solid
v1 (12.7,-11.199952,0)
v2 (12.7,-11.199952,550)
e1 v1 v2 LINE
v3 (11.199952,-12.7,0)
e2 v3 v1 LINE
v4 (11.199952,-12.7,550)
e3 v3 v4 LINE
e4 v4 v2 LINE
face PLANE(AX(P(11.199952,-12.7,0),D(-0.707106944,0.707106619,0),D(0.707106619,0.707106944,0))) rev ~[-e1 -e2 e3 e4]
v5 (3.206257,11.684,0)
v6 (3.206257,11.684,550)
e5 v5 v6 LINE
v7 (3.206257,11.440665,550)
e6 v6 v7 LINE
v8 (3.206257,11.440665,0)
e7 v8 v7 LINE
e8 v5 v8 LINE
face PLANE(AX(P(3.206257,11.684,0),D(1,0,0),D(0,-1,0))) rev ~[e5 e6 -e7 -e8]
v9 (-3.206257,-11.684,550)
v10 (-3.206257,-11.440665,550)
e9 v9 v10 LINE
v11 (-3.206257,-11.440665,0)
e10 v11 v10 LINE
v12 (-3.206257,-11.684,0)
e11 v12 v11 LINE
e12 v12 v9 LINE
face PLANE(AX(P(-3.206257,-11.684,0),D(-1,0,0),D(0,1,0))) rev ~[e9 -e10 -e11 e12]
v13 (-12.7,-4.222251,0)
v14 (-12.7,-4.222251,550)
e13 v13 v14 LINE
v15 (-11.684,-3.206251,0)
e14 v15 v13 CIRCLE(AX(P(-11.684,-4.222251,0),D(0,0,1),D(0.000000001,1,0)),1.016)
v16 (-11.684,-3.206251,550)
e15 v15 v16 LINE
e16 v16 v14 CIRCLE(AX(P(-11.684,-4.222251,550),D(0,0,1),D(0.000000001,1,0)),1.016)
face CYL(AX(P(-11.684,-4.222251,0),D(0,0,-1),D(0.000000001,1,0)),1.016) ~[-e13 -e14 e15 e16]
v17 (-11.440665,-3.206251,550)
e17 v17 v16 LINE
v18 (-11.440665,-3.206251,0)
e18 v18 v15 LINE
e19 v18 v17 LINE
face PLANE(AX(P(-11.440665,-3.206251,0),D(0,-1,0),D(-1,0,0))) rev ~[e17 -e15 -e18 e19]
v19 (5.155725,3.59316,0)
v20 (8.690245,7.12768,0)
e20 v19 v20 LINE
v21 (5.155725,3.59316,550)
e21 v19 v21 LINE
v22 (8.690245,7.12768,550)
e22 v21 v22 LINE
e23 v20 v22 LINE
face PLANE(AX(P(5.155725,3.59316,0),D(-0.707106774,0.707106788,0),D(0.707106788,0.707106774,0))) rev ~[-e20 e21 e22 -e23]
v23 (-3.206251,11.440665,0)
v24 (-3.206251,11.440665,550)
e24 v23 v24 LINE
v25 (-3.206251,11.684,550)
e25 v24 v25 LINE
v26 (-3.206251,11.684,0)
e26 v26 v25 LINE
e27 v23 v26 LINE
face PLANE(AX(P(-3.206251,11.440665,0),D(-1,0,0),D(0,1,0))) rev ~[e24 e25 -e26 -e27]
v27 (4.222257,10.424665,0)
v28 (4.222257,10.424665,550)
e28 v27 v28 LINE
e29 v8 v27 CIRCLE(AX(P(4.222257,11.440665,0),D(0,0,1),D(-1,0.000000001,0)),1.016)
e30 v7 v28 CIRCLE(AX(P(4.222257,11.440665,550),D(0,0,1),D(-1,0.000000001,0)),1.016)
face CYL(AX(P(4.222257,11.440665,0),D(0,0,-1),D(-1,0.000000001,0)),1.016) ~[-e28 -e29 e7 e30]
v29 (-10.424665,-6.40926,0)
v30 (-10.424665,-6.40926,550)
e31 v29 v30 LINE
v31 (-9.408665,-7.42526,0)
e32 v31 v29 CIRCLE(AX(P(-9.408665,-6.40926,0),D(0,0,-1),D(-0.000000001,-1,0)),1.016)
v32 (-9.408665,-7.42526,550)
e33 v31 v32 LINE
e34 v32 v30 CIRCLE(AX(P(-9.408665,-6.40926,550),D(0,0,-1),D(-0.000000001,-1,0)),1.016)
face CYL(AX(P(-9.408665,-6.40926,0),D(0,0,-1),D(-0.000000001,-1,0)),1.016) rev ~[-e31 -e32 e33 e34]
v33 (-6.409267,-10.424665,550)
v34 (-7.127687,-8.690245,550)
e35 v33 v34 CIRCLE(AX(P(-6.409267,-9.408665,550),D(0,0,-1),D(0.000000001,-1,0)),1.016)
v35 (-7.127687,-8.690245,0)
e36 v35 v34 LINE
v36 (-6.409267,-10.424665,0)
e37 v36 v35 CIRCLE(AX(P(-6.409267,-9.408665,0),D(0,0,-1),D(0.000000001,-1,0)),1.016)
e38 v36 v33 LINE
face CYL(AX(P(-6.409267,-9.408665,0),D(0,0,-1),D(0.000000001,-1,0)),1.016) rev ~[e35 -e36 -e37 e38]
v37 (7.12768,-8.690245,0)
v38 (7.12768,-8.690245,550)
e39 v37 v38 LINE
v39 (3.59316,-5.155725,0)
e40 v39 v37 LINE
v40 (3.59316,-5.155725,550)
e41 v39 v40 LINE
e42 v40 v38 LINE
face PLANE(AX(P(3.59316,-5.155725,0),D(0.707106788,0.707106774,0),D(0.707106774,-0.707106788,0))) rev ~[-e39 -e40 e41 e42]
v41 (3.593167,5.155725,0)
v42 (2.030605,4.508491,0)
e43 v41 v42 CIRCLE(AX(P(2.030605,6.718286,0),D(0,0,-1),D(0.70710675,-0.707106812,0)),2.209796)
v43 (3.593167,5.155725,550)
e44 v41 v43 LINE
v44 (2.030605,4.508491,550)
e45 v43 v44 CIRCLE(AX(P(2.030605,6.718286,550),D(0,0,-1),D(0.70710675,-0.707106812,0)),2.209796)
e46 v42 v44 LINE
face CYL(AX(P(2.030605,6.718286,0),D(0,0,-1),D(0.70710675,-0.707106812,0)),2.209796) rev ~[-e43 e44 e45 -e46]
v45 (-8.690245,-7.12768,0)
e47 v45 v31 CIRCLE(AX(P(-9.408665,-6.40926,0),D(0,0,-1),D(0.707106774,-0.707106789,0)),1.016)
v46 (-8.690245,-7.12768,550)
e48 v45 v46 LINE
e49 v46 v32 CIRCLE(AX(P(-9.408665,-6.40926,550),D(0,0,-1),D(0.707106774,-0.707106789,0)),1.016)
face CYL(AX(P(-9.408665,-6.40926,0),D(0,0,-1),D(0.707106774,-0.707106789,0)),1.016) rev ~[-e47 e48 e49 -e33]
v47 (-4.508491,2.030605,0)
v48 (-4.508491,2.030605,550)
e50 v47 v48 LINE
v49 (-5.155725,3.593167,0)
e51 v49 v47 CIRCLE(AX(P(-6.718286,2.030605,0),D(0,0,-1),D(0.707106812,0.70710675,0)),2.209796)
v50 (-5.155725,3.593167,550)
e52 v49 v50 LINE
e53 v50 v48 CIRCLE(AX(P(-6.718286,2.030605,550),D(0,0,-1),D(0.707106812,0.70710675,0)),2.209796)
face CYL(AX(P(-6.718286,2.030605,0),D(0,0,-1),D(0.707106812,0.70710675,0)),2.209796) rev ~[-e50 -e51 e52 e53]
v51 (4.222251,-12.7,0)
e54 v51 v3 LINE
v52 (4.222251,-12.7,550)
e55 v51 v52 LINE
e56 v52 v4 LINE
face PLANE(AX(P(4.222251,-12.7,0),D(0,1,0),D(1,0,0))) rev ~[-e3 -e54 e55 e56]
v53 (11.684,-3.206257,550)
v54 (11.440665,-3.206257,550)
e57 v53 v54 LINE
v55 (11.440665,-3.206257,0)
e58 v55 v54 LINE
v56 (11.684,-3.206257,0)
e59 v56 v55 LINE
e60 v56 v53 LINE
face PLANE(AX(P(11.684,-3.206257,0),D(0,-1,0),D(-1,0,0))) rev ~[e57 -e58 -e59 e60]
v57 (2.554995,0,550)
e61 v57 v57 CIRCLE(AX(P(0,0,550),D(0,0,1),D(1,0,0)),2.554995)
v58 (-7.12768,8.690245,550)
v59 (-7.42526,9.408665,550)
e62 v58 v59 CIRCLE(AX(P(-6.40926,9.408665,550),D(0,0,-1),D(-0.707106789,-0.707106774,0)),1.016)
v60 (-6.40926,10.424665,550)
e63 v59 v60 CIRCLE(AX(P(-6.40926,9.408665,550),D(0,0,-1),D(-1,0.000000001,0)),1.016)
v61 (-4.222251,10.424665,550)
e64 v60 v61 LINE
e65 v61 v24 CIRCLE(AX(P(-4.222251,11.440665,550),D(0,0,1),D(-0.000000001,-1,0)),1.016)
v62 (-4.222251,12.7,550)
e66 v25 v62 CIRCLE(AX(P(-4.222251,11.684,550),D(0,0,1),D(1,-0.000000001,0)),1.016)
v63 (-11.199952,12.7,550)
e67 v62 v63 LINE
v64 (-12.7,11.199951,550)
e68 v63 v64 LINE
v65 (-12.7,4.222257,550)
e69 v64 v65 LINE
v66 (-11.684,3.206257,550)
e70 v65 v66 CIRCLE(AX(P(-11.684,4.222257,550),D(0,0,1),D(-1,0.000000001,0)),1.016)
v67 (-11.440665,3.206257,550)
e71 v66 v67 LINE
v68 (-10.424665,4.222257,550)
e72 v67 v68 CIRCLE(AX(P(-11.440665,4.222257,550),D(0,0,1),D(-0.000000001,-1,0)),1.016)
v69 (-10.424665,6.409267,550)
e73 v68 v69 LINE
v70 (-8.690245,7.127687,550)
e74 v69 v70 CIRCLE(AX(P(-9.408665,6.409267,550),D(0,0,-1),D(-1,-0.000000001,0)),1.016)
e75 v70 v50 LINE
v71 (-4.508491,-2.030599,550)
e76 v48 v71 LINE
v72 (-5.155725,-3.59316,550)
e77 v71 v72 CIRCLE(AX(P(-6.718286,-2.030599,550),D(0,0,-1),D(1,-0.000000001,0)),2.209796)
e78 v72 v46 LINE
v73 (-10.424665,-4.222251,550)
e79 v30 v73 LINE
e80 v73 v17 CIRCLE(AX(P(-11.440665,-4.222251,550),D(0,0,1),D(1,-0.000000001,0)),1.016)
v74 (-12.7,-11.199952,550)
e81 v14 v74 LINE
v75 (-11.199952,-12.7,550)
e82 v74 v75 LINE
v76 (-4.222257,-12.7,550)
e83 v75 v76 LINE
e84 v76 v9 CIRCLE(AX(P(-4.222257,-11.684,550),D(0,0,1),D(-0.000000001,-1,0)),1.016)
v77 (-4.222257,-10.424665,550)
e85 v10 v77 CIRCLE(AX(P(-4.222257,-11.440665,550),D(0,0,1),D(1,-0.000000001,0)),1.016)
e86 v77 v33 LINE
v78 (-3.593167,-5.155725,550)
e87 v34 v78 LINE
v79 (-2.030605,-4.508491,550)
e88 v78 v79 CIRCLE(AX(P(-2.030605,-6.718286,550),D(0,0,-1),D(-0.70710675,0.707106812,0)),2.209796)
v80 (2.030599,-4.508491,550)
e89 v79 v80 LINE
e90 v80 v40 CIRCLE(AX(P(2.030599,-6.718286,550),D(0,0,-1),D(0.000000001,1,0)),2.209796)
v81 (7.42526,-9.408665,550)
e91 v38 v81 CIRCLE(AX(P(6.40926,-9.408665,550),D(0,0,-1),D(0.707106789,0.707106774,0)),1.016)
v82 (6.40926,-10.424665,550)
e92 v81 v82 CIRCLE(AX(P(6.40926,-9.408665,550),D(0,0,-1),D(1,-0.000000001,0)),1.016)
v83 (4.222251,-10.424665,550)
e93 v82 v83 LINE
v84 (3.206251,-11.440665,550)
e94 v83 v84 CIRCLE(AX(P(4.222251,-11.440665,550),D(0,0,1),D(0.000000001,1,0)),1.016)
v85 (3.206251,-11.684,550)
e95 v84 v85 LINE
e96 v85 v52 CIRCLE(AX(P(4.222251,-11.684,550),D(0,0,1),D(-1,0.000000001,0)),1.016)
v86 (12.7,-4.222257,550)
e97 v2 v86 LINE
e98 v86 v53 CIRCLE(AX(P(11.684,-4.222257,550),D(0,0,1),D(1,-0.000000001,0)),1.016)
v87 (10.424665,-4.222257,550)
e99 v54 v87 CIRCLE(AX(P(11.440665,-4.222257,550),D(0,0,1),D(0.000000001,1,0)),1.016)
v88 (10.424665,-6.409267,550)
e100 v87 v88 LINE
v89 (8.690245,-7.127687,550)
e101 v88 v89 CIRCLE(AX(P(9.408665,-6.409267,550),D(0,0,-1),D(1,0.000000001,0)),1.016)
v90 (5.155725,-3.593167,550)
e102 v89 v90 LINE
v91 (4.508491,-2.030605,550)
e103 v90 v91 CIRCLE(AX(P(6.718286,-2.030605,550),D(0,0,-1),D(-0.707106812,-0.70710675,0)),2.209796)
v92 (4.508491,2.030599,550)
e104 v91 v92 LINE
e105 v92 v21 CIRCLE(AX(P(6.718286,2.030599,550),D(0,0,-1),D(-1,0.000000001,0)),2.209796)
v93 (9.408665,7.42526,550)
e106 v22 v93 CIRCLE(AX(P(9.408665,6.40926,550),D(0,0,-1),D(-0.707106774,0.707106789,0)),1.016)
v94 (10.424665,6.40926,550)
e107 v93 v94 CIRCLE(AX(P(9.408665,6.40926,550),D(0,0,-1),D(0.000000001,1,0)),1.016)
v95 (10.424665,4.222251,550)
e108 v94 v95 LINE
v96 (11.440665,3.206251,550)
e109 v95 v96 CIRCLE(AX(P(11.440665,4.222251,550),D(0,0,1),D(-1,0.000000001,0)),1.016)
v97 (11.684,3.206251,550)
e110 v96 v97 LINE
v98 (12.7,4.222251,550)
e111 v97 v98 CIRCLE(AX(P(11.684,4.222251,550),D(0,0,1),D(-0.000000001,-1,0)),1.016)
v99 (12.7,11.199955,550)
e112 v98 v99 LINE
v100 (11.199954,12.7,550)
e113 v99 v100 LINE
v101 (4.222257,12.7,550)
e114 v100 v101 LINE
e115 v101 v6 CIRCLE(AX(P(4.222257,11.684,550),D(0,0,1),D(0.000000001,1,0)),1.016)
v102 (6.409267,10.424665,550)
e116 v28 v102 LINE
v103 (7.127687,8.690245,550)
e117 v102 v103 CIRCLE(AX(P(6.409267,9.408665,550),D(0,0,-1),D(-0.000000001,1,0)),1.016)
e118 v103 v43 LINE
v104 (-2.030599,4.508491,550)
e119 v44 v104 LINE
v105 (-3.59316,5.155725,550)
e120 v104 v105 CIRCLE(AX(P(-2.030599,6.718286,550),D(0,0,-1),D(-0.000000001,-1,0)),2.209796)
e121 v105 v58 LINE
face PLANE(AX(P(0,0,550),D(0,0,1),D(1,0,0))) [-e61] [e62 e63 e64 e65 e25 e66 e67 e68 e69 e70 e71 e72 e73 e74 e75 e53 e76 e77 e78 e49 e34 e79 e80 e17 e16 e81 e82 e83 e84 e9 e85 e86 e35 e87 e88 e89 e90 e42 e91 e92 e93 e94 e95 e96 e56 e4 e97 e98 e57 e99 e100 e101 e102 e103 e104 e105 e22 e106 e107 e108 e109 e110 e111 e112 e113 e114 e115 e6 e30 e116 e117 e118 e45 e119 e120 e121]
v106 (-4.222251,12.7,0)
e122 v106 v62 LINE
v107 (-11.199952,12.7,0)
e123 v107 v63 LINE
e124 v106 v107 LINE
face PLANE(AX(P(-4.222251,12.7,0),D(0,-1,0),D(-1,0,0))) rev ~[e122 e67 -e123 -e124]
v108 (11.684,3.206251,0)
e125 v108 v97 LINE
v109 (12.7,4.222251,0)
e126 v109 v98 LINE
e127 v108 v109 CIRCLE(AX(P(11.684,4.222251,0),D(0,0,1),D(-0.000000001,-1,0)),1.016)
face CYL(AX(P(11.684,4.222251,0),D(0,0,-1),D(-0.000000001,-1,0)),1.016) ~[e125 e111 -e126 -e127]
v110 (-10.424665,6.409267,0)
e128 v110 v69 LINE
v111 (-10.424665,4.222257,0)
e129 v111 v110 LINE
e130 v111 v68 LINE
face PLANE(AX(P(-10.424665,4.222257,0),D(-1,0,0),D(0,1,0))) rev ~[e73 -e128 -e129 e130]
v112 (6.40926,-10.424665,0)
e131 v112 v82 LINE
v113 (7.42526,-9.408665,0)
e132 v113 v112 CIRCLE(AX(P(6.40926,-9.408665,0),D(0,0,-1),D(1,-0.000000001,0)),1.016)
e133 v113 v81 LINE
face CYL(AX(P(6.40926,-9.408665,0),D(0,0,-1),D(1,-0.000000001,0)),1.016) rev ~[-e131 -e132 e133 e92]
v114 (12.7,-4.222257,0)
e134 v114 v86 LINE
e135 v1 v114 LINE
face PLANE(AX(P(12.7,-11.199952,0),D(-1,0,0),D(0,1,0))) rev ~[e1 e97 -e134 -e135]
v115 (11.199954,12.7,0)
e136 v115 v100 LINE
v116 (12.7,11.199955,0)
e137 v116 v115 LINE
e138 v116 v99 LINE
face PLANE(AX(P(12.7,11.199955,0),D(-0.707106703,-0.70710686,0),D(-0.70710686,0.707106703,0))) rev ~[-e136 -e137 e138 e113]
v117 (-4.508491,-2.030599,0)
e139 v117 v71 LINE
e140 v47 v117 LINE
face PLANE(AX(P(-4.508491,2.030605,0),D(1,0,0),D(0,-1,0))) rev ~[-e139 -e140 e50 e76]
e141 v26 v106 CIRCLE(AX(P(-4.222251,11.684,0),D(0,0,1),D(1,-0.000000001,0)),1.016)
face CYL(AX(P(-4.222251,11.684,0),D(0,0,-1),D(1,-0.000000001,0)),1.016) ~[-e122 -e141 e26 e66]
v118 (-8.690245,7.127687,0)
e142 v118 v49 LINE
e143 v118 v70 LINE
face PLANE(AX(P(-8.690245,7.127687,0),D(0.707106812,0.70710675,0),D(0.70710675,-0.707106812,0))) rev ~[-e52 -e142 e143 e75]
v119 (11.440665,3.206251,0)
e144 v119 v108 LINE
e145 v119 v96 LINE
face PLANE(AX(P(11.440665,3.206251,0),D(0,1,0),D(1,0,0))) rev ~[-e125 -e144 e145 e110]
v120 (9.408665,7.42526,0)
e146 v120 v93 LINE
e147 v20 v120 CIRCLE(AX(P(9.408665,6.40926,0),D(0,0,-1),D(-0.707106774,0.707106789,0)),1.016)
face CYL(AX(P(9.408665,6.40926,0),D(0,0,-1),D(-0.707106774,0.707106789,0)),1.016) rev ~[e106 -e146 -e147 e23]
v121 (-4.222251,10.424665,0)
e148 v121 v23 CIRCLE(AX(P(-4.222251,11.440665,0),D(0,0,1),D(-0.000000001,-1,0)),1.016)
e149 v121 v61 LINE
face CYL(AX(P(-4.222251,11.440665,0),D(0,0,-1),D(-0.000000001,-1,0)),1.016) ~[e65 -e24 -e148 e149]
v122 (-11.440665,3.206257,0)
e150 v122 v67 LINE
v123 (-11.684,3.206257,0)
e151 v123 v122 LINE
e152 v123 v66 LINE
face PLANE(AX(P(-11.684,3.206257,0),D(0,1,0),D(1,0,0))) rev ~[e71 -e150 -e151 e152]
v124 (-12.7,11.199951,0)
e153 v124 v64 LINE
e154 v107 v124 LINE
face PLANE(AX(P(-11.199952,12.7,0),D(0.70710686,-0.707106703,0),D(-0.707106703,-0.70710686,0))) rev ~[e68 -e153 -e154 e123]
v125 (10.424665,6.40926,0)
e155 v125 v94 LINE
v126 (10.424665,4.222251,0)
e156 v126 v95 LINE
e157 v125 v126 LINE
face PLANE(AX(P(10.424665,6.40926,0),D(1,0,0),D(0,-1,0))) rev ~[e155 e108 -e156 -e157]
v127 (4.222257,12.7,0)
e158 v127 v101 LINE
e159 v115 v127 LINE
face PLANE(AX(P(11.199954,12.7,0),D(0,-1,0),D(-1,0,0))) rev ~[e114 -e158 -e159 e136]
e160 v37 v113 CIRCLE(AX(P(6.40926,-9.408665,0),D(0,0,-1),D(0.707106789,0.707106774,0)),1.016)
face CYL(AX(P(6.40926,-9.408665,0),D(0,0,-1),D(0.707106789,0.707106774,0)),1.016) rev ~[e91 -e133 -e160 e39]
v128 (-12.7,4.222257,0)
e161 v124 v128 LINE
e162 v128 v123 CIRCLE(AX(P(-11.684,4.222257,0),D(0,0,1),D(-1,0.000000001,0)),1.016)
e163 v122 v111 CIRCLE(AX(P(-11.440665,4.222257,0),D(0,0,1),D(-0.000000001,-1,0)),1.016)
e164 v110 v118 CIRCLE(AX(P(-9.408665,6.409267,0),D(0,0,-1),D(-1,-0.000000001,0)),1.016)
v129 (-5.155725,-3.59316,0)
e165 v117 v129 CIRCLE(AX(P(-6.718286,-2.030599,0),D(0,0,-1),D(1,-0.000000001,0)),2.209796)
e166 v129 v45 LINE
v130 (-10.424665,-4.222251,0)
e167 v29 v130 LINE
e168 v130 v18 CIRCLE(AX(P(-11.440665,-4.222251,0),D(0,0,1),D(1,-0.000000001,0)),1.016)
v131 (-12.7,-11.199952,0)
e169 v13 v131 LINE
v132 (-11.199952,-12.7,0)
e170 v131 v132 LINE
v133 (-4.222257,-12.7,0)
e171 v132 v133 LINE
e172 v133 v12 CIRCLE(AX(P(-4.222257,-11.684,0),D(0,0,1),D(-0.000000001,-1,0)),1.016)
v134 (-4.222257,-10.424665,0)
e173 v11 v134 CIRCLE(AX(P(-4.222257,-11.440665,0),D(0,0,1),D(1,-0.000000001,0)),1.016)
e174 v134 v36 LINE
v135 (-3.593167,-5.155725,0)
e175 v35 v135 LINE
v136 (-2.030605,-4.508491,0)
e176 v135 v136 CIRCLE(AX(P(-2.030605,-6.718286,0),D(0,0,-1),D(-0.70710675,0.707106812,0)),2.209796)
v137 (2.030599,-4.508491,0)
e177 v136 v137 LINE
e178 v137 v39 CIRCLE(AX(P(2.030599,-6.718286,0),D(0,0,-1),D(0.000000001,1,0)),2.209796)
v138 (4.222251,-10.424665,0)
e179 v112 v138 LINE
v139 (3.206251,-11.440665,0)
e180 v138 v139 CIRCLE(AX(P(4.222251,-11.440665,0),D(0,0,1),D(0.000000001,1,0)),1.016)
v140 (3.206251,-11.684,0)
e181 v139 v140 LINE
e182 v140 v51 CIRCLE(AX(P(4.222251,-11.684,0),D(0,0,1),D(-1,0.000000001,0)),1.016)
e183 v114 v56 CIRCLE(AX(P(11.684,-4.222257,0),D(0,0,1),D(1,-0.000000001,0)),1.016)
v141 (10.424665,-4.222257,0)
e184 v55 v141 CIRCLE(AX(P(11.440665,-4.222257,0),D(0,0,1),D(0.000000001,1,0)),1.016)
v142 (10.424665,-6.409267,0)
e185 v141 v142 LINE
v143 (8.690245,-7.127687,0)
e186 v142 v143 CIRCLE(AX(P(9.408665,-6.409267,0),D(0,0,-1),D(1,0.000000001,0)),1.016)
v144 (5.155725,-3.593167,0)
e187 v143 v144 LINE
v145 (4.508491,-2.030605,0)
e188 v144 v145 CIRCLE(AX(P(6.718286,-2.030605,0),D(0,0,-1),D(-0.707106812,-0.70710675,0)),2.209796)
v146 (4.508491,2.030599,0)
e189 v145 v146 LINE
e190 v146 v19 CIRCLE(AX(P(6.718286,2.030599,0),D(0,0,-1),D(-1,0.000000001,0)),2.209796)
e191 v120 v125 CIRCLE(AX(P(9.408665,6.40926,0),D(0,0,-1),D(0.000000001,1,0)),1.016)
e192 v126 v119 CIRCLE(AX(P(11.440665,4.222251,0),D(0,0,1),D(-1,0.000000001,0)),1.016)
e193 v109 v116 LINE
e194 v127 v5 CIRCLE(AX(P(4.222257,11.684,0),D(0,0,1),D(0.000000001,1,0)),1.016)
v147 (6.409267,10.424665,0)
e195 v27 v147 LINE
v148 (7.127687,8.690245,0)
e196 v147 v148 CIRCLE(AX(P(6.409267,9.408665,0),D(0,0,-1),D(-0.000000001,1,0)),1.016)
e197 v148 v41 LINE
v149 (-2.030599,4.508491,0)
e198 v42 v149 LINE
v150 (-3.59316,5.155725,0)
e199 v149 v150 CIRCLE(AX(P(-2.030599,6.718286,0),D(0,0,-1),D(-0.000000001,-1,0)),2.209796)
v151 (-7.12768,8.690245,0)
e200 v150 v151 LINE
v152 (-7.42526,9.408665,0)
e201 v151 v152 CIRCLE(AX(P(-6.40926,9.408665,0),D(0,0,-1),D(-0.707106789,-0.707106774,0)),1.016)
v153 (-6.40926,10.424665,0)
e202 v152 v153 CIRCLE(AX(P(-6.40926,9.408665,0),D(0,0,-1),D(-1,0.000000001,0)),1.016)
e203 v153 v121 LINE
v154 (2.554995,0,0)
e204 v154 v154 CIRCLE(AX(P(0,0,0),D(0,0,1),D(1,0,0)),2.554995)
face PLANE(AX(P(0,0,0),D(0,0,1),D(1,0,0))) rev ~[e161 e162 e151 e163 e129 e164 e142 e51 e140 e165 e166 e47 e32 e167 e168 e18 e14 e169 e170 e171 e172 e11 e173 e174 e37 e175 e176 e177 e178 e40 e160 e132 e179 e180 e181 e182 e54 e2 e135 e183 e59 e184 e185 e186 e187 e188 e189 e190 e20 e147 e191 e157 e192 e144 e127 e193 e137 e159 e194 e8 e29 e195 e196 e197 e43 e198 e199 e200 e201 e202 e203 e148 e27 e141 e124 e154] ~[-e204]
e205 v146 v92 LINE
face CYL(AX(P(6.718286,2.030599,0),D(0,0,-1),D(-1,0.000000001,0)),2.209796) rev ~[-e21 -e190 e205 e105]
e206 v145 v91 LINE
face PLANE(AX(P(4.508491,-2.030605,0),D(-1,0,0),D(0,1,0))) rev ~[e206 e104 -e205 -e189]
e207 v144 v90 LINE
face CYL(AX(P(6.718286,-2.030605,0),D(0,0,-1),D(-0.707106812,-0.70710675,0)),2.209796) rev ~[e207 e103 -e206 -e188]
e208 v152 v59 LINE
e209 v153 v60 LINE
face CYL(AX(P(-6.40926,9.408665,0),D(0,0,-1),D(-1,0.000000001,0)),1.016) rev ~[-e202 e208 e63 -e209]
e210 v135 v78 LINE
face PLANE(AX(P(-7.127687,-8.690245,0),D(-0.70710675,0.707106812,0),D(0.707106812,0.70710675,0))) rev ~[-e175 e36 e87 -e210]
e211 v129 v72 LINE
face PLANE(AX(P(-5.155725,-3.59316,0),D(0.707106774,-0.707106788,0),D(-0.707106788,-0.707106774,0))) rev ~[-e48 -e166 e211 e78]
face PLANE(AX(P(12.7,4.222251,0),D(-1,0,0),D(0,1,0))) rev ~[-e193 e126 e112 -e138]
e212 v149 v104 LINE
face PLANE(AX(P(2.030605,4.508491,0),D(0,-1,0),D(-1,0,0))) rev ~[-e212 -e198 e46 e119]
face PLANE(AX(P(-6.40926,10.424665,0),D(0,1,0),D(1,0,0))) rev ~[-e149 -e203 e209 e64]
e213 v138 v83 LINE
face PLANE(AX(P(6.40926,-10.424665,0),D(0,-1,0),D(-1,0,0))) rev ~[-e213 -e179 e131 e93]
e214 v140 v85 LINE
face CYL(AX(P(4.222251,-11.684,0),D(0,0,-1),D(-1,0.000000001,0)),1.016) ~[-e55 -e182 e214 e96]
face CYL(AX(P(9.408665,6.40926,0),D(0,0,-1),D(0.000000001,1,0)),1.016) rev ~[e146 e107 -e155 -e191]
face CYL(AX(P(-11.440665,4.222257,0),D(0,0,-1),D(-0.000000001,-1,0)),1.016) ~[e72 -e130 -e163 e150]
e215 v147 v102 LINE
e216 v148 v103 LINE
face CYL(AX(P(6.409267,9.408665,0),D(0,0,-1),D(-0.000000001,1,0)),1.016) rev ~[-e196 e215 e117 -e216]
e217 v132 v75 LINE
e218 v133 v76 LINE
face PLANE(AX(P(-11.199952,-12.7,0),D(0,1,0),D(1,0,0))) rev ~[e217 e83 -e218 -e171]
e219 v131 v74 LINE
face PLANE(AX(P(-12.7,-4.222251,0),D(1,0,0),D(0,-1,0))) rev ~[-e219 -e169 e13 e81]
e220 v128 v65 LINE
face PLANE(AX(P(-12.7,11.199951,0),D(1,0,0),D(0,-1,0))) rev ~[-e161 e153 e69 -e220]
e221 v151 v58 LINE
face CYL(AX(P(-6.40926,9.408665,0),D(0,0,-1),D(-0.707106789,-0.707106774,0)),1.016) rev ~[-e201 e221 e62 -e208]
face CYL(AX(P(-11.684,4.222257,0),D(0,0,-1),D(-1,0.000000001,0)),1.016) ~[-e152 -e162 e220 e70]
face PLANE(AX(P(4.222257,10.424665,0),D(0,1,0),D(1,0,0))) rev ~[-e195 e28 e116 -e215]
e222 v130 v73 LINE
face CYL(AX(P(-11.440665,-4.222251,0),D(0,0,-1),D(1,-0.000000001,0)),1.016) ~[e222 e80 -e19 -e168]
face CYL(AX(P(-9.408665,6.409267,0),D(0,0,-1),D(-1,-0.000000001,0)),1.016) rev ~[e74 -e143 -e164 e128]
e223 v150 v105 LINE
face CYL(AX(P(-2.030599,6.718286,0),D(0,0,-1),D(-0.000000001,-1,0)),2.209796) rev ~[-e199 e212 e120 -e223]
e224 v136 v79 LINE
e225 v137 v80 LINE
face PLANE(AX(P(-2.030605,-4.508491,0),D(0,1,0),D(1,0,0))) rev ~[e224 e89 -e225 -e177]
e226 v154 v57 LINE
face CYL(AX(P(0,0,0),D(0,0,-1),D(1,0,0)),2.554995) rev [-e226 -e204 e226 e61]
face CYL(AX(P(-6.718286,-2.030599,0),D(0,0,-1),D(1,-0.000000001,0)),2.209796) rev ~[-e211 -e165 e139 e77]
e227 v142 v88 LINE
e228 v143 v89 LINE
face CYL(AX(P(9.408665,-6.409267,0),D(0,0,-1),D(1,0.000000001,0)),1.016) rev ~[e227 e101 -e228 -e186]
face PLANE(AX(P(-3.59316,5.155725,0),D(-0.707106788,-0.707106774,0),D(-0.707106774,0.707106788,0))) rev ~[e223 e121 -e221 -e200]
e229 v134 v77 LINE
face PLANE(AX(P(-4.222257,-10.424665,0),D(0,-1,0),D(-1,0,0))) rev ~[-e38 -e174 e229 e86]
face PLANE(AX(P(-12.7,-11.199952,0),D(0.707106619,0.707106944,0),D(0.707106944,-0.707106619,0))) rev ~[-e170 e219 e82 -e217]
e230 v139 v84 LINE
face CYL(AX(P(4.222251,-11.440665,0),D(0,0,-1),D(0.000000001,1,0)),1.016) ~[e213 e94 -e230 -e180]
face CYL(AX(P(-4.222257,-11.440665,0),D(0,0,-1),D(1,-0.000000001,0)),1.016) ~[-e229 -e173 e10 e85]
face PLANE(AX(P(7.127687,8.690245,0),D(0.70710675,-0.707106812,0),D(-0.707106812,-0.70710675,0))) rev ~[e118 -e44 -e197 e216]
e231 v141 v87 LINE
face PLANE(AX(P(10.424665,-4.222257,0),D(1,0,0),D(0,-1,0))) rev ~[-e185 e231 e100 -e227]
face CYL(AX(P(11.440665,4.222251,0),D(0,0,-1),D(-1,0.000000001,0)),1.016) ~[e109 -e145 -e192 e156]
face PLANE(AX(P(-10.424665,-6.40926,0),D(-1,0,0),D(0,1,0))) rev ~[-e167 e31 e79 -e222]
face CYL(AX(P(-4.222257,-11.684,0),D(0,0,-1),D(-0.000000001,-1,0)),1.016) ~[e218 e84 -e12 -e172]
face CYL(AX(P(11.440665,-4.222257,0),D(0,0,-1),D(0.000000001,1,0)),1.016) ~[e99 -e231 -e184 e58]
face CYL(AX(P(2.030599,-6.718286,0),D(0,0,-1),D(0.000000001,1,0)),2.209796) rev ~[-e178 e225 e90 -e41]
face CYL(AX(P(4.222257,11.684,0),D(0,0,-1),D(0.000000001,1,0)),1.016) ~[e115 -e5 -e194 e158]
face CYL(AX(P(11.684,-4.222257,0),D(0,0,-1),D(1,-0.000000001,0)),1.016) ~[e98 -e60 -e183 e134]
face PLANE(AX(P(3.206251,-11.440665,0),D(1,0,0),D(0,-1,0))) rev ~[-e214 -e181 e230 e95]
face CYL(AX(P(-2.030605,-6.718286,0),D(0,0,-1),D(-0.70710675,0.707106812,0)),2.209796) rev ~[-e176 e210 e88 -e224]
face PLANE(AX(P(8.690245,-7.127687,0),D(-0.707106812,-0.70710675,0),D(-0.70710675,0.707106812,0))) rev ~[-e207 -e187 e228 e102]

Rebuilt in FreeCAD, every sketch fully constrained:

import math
import FreeCAD as App
import Part
import Sketcher

V = App.Vector
Q = App.Units.Quantity

doc = App.newDocument("Part")
body = doc.addObject("PartDesign::Body", "Body")

# Sketch on XY plane
sketch1 = body.newObject("Sketcher::SketchObject", "Sketch")
sketch1.AttachmentSupport = (doc.getObject("XY_Plane"), [""])
sketch1.MapMode = "FlatFace"
sketch1.addGeometry(Part.LineSegment(V(-11.2, -12.7, 0), V(-4.22, -12.7, 0)), False)
sketch1.addGeometry(Part.ArcOfCircle(Part.Circle(V(-4.22, -11.68, 0), V(0, 0, 1), 1.02), math.radians(-90), math.radians(0)), False)
sketch1.addGeometry(Part.LineSegment(V(-3.21, -11.68, 0), V(-3.21, -11.44, 0)), False)
sketch1.addGeometry(Part.ArcOfCircle(Part.Circle(V(-4.22, -11.44, 0), V(0, 0, 1), 1.02), math.radians(0), math.radians(90)), False)
sketch1.addGeometry(Part.LineSegment(V(-4.22, -10.42, 0), V(-6.41, -10.42, 0)), False)
sketch1.addGeometry(Part.ArcOfCircle(Part.Circle(V(-6.41, -9.41, 0), V(0, 0, 1), 1.02), math.radians(135), math.radians(270)), False)
sketch1.addGeometry(Part.LineSegment(V(-7.13, -8.69, 0), V(-3.59, -5.16, 0)), False)
sketch1.addGeometry(Part.ArcOfCircle(Part.Circle(V(-2.03, -6.72, 0), V(0, 0, 1), 2.21), math.radians(90), math.radians(135)), False)
sketch1.addGeometry(Part.LineSegment(V(-2.03, -4.51, 0), V(2.03, -4.51, 0)), False)
sketch1.addGeometry(Part.ArcOfCircle(Part.Circle(V(2.03, -6.72, 0), V(0, 0, 1), 2.21), math.radians(45), math.radians(90)), False)
sketch1.addGeometry(Part.LineSegment(V(3.59, -5.16, 0), V(7.13, -8.69, 0)), False)
sketch1.addGeometry(Part.ArcOfCircle(Part.Circle(V(6.41, -9.41, 0), V(0, 0, 1), 1.02), math.radians(0), math.radians(45)), False)
sketch1.addGeometry(Part.ArcOfCircle(Part.Circle(V(6.41, -9.41, 0), V(0, 0, 1), 1.02), math.radians(-90), math.radians(0)), False)
sketch1.addGeometry(Part.LineSegment(V(6.41, -10.42, 0), V(4.22, -10.42, 0)), False)
sketch1.addGeometry(Part.ArcOfCircle(Part.Circle(V(4.22, -11.44, 0), V(0, 0, 1), 1.02), math.radians(90), math.radians(180)), False)
sketch1.addGeometry(Part.LineSegment(V(3.21, -11.44, 0), V(3.21, -11.68, 0)), False)
sketch1.addGeometry(Part.ArcOfCircle(Part.Circle(V(4.22, -11.68, 0), V(0, 0, 1), 1.02), math.radians(180), math.radians(270)), False)
sketch1.addGeometry(Part.LineSegment(V(4.22, -12.7, 0), V(11.2, -12.7, 0)), False)
sketch1.addGeometry(Part.LineSegment(V(11.2, -12.7, 0), V(12.7, -11.2, 0)), False)
sketch1.addGeometry(Part.LineSegment(V(12.7, -11.2, 0), V(12.7, -4.22, 0)), False)
sketch1.addGeometry(Part.ArcOfCircle(Part.Circle(V(11.68, -4.22, 0), V(0, 0, 1), 1.02), math.radians(0), math.radians(90)), False)
sketch1.addGeometry(Part.LineSegment(V(11.68, -3.21, 0), V(11.44, -3.21, 0)), False)
sketch1.addGeometry(Part.ArcOfCircle(Part.Circle(V(11.44, -4.22, 0), V(0, 0, 1), 1.02), math.radians(90), math.radians(180)), False)
sketch1.addGeometry(Part.LineSegment(V(10.42, -4.22, 0), V(10.42, -6.41, 0)), False)
sketch1.addGeometry(Part.ArcOfCircle(Part.Circle(V(9.41, -6.41, 0), V(0, 0, 1), 1.02), math.radians(-135), math.radians(0)), False)
sketch1.addGeometry(Part.LineSegment(V(8.69, -7.13, 0), V(5.16, -3.59, 0)), False)
sketch1.addGeometry(Part.ArcOfCircle(Part.Circle(V(6.72, -2.03, 0), V(0, 0, 1), 2.21), math.radians(180), math.radians(225)), False)
sketch1.addGeometry(Part.LineSegment(V(4.51, -2.03, 0), V(4.51, 2.03, 0)), False)
sketch1.addGeometry(Part.ArcOfCircle(Part.Circle(V(6.72, 2.03, 0), V(0, 0, 1), 2.21), math.radians(135), math.radians(180)), False)
sketch1.addGeometry(Part.LineSegment(V(5.16, 3.59, 0), V(8.69, 7.13, 0)), False)
sketch1.addGeometry(Part.ArcOfCircle(Part.Circle(V(9.41, 6.41, 0), V(0, 0, 1), 1.02), math.radians(90), math.radians(135)), False)
sketch1.addGeometry(Part.ArcOfCircle(Part.Circle(V(9.41, 6.41, 0), V(0, 0, 1), 1.02), math.radians(0), math.radians(90)), False)
sketch1.addGeometry(Part.LineSegment(V(10.42, 6.41, 0), V(10.42, 4.22, 0)), False)
sketch1.addGeometry(Part.ArcOfCircle(Part.Circle(V(11.44, 4.22, 0), V(0, 0, 1), 1.02), math.radians(180), math.radians(270)), False)
sketch1.addGeometry(Part.LineSegment(V(11.44, 3.21, 0), V(11.68, 3.21, 0)), False)
sketch1.addGeometry(Part.ArcOfCircle(Part.Circle(V(11.68, 4.22, 0), V(0, 0, 1), 1.02), math.radians(-90), math.radians(0)), False)
sketch1.addGeometry(Part.LineSegment(V(12.7, 4.22, 0), V(12.7, 11.2, 0)), False)
sketch1.addGeometry(Part.LineSegment(V(12.7, 11.2, 0), V(11.2, 12.7, 0)), False)
sketch1.addGeometry(Part.LineSegment(V(11.2, 12.7, 0), V(4.22, 12.7, 0)), False)
sketch1.addGeometry(Part.ArcOfCircle(Part.Circle(V(4.22, 11.68, 0), V(0, 0, 1), 1.02), math.radians(90), math.radians(180)), False)
sketch1.addGeometry(Part.LineSegment(V(3.21, 11.68, 0), V(3.21, 11.44, 0)), False)
sketch1.addGeometry(Part.ArcOfCircle(Part.Circle(V(4.22, 11.44, 0), V(0, 0, 1), 1.02), math.radians(180), math.radians(270)), False)
sketch1.addGeometry(Part.LineSegment(V(4.22, 10.42, 0), V(6.41, 10.42, 0)), False)
sketch1.addGeometry(Part.ArcOfCircle(Part.Circle(V(6.41, 9.41, 0), V(0, 0, 1), 1.02), math.radians(-45), math.radians(90)), False)
sketch1.addGeometry(Part.LineSegment(V(7.13, 8.69, 0), V(3.59, 5.16, 0)), False)
sketch1.addGeometry(Part.ArcOfCircle(Part.Circle(V(2.03, 6.72, 0), V(0, 0, 1), 2.21), math.radians(-90), math.radians(-45)), False)
sketch1.addGeometry(Part.LineSegment(V(2.03, 4.51, 0), V(-2.03, 4.51, 0)), False)
sketch1.addGeometry(Part.ArcOfCircle(Part.Circle(V(-2.03, 6.72, 0), V(0, 0, 1), 2.21), math.radians(-135), math.radians(-90)), False)
sketch1.addGeometry(Part.LineSegment(V(-3.59, 5.16, 0), V(-7.13, 8.69, 0)), False)
sketch1.addGeometry(Part.ArcOfCircle(Part.Circle(V(-6.41, 9.41, 0), V(0, 0, 1), 1.02), math.radians(180), math.radians(225)), False)
sketch1.addGeometry(Part.ArcOfCircle(Part.Circle(V(-6.41, 9.41, 0), V(0, 0, 1), 1.02), math.radians(90), math.radians(180)), False)
sketch1.addGeometry(Part.LineSegment(V(-6.41, 10.42, 0), V(-4.22, 10.42, 0)), False)
sketch1.addGeometry(Part.ArcOfCircle(Part.Circle(V(-4.22, 11.44, 0), V(0, 0, 1), 1.02), math.radians(-90), math.radians(0)), False)
sketch1.addGeometry(Part.LineSegment(V(-3.21, 11.44, 0), V(-3.21, 11.68, 0)), False)
sketch1.addGeometry(Part.ArcOfCircle(Part.Circle(V(-4.22, 11.68, 0), V(0, 0, 1), 1.02), math.radians(0), math.radians(90)), False)
sketch1.addGeometry(Part.LineSegment(V(-4.22, 12.7, 0), V(-11.2, 12.7, 0)), False)
sketch1.addGeometry(Part.LineSegment(V(-11.2, 12.7, 0), V(-12.7, 11.2, 0)), False)
sketch1.addGeometry(Part.LineSegment(V(-12.7, 11.2, 0), V(-12.7, 4.22, 0)), False)
sketch1.addGeometry(Part.ArcOfCircle(Part.Circle(V(-11.68, 4.22, 0), V(0, 0, 1), 1.02), math.radians(180), math.radians(270)), False)
sketch1.addGeometry(Part.LineSegment(V(-11.68, 3.21, 0), V(-11.44, 3.21, 0)), False)
sketch1.addGeometry(Part.ArcOfCircle(Part.Circle(V(-11.44, 4.22, 0), V(0, 0, 1), 1.02), math.radians(-90), math.radians(0)), False)
sketch1.addGeometry(Part.LineSegment(V(-10.42, 4.22, 0), V(-10.42, 6.41, 0)), False)
sketch1.addGeometry(Part.ArcOfCircle(Part.Circle(V(-9.41, 6.41, 0), V(0, 0, 1), 1.02), math.radians(45), math.radians(180)), False)
sketch1.addGeometry(Part.LineSegment(V(-8.69, 7.13, 0), V(-5.16, 3.59, 0)), False)
sketch1.addGeometry(Part.ArcOfCircle(Part.Circle(V(-6.72, 2.03, 0), V(0, 0, 1), 2.21), math.radians(0), math.radians(45)), False)
sketch1.addGeometry(Part.LineSegment(V(-4.51, 2.03, 0), V(-4.51, -2.03, 0)), False)
sketch1.addGeometry(Part.ArcOfCircle(Part.Circle(V(-6.72, -2.03, 0), V(0, 0, 1), 2.21), math.radians(-45), math.radians(0)), False)
sketch1.addGeometry(Part.LineSegment(V(-5.16, -3.59, 0), V(-8.69, -7.13, 0)), False)
sketch1.addGeometry(Part.ArcOfCircle(Part.Circle(V(-9.41, -6.41, 0), V(0, 0, 1), 1.02), math.radians(-90), math.radians(-45)), False)
sketch1.addGeometry(Part.ArcOfCircle(Part.Circle(V(-9.41, -6.41, 0), V(0, 0, 1), 1.02), math.radians(-180), math.radians(-90)), False)
sketch1.addGeometry(Part.LineSegment(V(-10.42, -6.41, 0), V(-10.42, -4.22, 0)), False)
sketch1.addGeometry(Part.ArcOfCircle(Part.Circle(V(-11.44, -4.22, 0), V(0, 0, 1), 1.02), math.radians(0), math.radians(90)), False)
sketch1.addGeometry(Part.LineSegment(V(-11.44, -3.21, 0), V(-11.68, -3.21, 0)), False)
sketch1.addGeometry(Part.ArcOfCircle(Part.Circle(V(-11.68, -4.22, 0), V(0, 0, 1), 1.02), math.radians(90), math.radians(180)), False)
sketch1.addGeometry(Part.LineSegment(V(-12.7, -4.22, 0), V(-12.7, -11.2, 0)), False)
sketch1.addGeometry(Part.LineSegment(V(-12.7, -11.2, 0), V(-11.2, -12.7, 0)), False)
sketch1.addGeometry(Part.Circle(V(0, 0, 0), V(0, 0, 1), 2.55), False)
sketch1.addConstraint(Sketcher.Constraint("Tangent", 0, 2, 1, 1))
sketch1.addConstraint(Sketcher.Constraint("Tangent", 1, 2, 2, 1))
sketch1.addConstraint(Sketcher.Constraint("Tangent", 2, 2, 3, 1))
sketch1.addConstraint(Sketcher.Constraint("Tangent", 3, 2, 4, 1))
sketch1.addConstraint(Sketcher.Constraint("Tangent", 4, 2, 5, 2))
sketch1.addConstraint(Sketcher.Constraint("Tangent", 5, 1, 6, 1))
sketch1.addConstraint(Sketcher.Constraint("Tangent", 6, 2, 7, 2))
sketch1.addConstraint(Sketcher.Constraint("Tangent", 7, 1, 8, 1))
sketch1.addConstraint(Sketcher.Constraint("Tangent", 8, 2, 9, 2))
sketch1.addConstraint(Sketcher.Constraint("Tangent", 9, 1, 10, 1))
sketch1.addConstraint(Sketcher.Constraint("Tangent", 10, 2, 11, 2))
sketch1.addConstraint(Sketcher.Constraint("Tangent", 11, 1, 12, 2))
sketch1.addConstraint(Sketcher.Constraint("Tangent", 12, 1, 13, 1))
sketch1.addConstraint(Sketcher.Constraint("Tangent", 13, 2, 14, 1))
sketch1.addConstraint(Sketcher.Constraint("Tangent", 14, 2, 15, 1))
sketch1.addConstraint(Sketcher.Constraint("Tangent", 15, 2, 16, 1))
sketch1.addConstraint(Sketcher.Constraint("Tangent", 16, 2, 17, 1))
sketch1.addConstraint(Sketcher.Constraint("Coincident", 17, 2, 18, 1))
sketch1.addConstraint(Sketcher.Constraint("Coincident", 18, 2, 19, 1))
sketch1.addConstraint(Sketcher.Constraint("Tangent", 19, 2, 20, 1))
sketch1.addConstraint(Sketcher.Constraint("Tangent", 20, 2, 21, 1))
sketch1.addConstraint(Sketcher.Constraint("Tangent", 21, 2, 22, 1))
sketch1.addConstraint(Sketcher.Constraint("Tangent", 22, 2, 23, 1))
sketch1.addConstraint(Sketcher.Constraint("Tangent", 23, 2, 24, 2))
sketch1.addConstraint(Sketcher.Constraint("Tangent", 24, 1, 25, 1))
sketch1.addConstraint(Sketcher.Constraint("Tangent", 25, 2, 26, 2))
sketch1.addConstraint(Sketcher.Constraint("Tangent", 26, 1, 27, 1))
sketch1.addConstraint(Sketcher.Constraint("Tangent", 27, 2, 28, 2))
sketch1.addConstraint(Sketcher.Constraint("Tangent", 28, 1, 29, 1))
sketch1.addConstraint(Sketcher.Constraint("Tangent", 29, 2, 30, 2))
sketch1.addConstraint(Sketcher.Constraint("Tangent", 30, 1, 31, 2))
sketch1.addConstraint(Sketcher.Constraint("Tangent", 31, 1, 32, 1))
sketch1.addConstraint(Sketcher.Constraint("Tangent", 32, 2, 33, 1))
sketch1.addConstraint(Sketcher.Constraint("Tangent", 33, 2, 34, 1))
sketch1.addConstraint(Sketcher.Constraint("Tangent", 34, 2, 35, 1))
sketch1.addConstraint(Sketcher.Constraint("Tangent", 35, 2, 36, 1))
sketch1.addConstraint(Sketcher.Constraint("Coincident", 36, 2, 37, 1))
sketch1.addConstraint(Sketcher.Constraint("Coincident", 37, 2, 38, 1))
sketch1.addConstraint(Sketcher.Constraint("Tangent", 38, 2, 39, 1))
sketch1.addConstraint(Sketcher.Constraint("Tangent", 39, 2, 40, 1))
sketch1.addConstraint(Sketcher.Constraint("Tangent", 40, 2, 41, 1))
sketch1.addConstraint(Sketcher.Constraint("Tangent", 41, 2, 42, 1))
sketch1.addConstraint(Sketcher.Constraint("Tangent", 42, 2, 43, 2))
sketch1.addConstraint(Sketcher.Constraint("Tangent", 43, 1, 44, 1))
sketch1.addConstraint(Sketcher.Constraint("Tangent", 44, 2, 45, 2))
sketch1.addConstraint(Sketcher.Constraint("Tangent", 45, 1, 46, 1))
sketch1.addConstraint(Sketcher.Constraint("Tangent", 46, 2, 47, 2))
sketch1.addConstraint(Sketcher.Constraint("Tangent", 47, 1, 48, 1))
sketch1.addConstraint(Sketcher.Constraint("Tangent", 48, 2, 49, 2))
sketch1.addConstraint(Sketcher.Constraint("Tangent", 49, 1, 50, 2))
sketch1.addConstraint(Sketcher.Constraint("Tangent", 50, 1, 51, 1))
sketch1.addConstraint(Sketcher.Constraint("Tangent", 51, 2, 52, 1))
sketch1.addConstraint(Sketcher.Constraint("Tangent", 52, 2, 53, 1))
sketch1.addConstraint(Sketcher.Constraint("Tangent", 53, 2, 54, 1))
sketch1.addConstraint(Sketcher.Constraint("Tangent", 54, 2, 55, 1))
sketch1.addConstraint(Sketcher.Constraint("Coincident", 55, 2, 56, 1))
sketch1.addConstraint(Sketcher.Constraint("Coincident", 56, 2, 57, 1))
sketch1.addConstraint(Sketcher.Constraint("Tangent", 57, 2, 58, 1))
sketch1.addConstraint(Sketcher.Constraint("Tangent", 58, 2, 59, 1))
sketch1.addConstraint(Sketcher.Constraint("Tangent", 59, 2, 60, 1))
sketch1.addConstraint(Sketcher.Constraint("Tangent", 60, 2, 61, 1))
sketch1.addConstraint(Sketcher.Constraint("Tangent", 61, 2, 62, 2))
sketch1.addConstraint(Sketcher.Constraint("Tangent", 62, 1, 63, 1))
sketch1.addConstraint(Sketcher.Constraint("Tangent", 63, 2, 64, 2))
sketch1.addConstraint(Sketcher.Constraint("Tangent", 64, 1, 65, 1))
sketch1.addConstraint(Sketcher.Constraint("Tangent", 65, 2, 66, 2))
sketch1.addConstraint(Sketcher.Constraint("Tangent", 66, 1, 67, 1))
sketch1.addConstraint(Sketcher.Constraint("Tangent", 67, 2, 68, 2))
sketch1.addConstraint(Sketcher.Constraint("Tangent", 68, 1, 69, 2))
sketch1.addConstraint(Sketcher.Constraint("Tangent", 69, 1, 70, 1))
sketch1.addConstraint(Sketcher.Constraint("Tangent", 70, 2, 71, 1))
sketch1.addConstraint(Sketcher.Constraint("Tangent", 71, 2, 72, 1))
sketch1.addConstraint(Sketcher.Constraint("Tangent", 72, 2, 73, 1))
sketch1.addConstraint(Sketcher.Constraint("Tangent", 73, 2, 74, 1))
sketch1.addConstraint(Sketcher.Constraint("Coincident", 74, 2, 75, 1))
sketch1.addConstraint(Sketcher.Constraint("Coincident", 75, 2, 0, 1))
sketch1.addConstraint(Sketcher.Constraint("Horizontal", 0))
sketch1.addConstraint(Sketcher.Constraint("Vertical", 2))
sketch1.addConstraint(Sketcher.Constraint("Horizontal", 4))
sketch1.addConstraint(Sketcher.Constraint("Horizontal", 8))
sketch1.addConstraint(Sketcher.Constraint("Horizontal", 13))
sketch1.addConstraint(Sketcher.Constraint("Vertical", 15))
sketch1.addConstraint(Sketcher.Constraint("Horizontal", 17))
sketch1.addConstraint(Sketcher.Constraint("Vertical", 19))
sketch1.addConstraint(Sketcher.Constraint("Horizontal", 21))
sketch1.addConstraint(Sketcher.Constraint("Vertical", 23))
sketch1.addConstraint(Sketcher.Constraint("Vertical", 27))
sketch1.addConstraint(Sketcher.Constraint("Vertical", 32))
sketch1.addConstraint(Sketcher.Constraint("Horizontal", 34))
sketch1.addConstraint(Sketcher.Constraint("Vertical", 36))
sketch1.addConstraint(Sketcher.Constraint("Horizontal", 38))
sketch1.addConstraint(Sketcher.Constraint("Vertical", 40))
sketch1.addConstraint(Sketcher.Constraint("Horizontal", 42))
sketch1.addConstraint(Sketcher.Constraint("Horizontal", 46))
sketch1.addConstraint(Sketcher.Constraint("Horizontal", 51))
sketch1.addConstraint(Sketcher.Constraint("Vertical", 53))
sketch1.addConstraint(Sketcher.Constraint("Horizontal", 55))
sketch1.addConstraint(Sketcher.Constraint("Vertical", 57))
sketch1.addConstraint(Sketcher.Constraint("Horizontal", 59))
sketch1.addConstraint(Sketcher.Constraint("Vertical", 61))
sketch1.addConstraint(Sketcher.Constraint("Vertical", 65))
sketch1.addConstraint(Sketcher.Constraint("Vertical", 70))
sketch1.addConstraint(Sketcher.Constraint("Horizontal", 72))
sketch1.addConstraint(Sketcher.Constraint("Vertical", 74))
sketch1.addConstraint(Sketcher.Constraint("Coincident", 76, 3, -1, 1))
sketch1.addConstraint(Sketcher.Constraint("Equal", 1, 3))
sketch1.addConstraint(Sketcher.Constraint("Equal", 3, 5))
sketch1.addConstraint(Sketcher.Constraint("Equal", 7, 9))
sketch1.addConstraint(Sketcher.Constraint("Equal", 5, 11))
sketch1.addConstraint(Sketcher.Constraint("Equal", 11, 12))
sketch1.addConstraint(Sketcher.Constraint("Equal", 12, 14))
sketch1.addConstraint(Sketcher.Constraint("Equal", 14, 16))
sketch1.addConstraint(Sketcher.Constraint("Equal", 16, 20))
sketch1.addConstraint(Sketcher.Constraint("Equal", 20, 22))
sketch1.addConstraint(Sketcher.Constraint("Equal", 22, 24))
sketch1.addConstraint(Sketcher.Constraint("Equal", 9, 26))
sketch1.addConstraint(Sketcher.Constraint("Equal", 26, 28))
sketch1.addConstraint(Sketcher.Constraint("Equal", 24, 30))
sketch1.addConstraint(Sketcher.Constraint("Equal", 30, 31))
sketch1.addConstraint(Sketcher.Constraint("Equal", 31, 33))
sketch1.addConstraint(Sketcher.Constraint("Equal", 33, 35))
sketch1.addConstraint(Sketcher.Constraint("Equal", 35, 39))
sketch1.addConstraint(Sketcher.Constraint("Equal", 39, 41))
sketch1.addConstraint(Sketcher.Constraint("Equal", 41, 43))
sketch1.addConstraint(Sketcher.Constraint("Equal", 28, 45))
sketch1.addConstraint(Sketcher.Constraint("Equal", 45, 47))
sketch1.addConstraint(Sketcher.Constraint("Equal", 43, 49))
sketch1.addConstraint(Sketcher.Constraint("Equal", 49, 50))
sketch1.addConstraint(Sketcher.Constraint("Equal", 50, 52))
sketch1.addConstraint(Sketcher.Constraint("Equal", 52, 54))
sketch1.addConstraint(Sketcher.Constraint("Equal", 54, 58))
sketch1.addConstraint(Sketcher.Constraint("Equal", 58, 60))
sketch1.addConstraint(Sketcher.Constraint("Equal", 60, 62))
sketch1.addConstraint(Sketcher.Constraint("Equal", 47, 64))
sketch1.addConstraint(Sketcher.Constraint("Equal", 64, 66))
sketch1.addConstraint(Sketcher.Constraint("Equal", 62, 68))
sketch1.addConstraint(Sketcher.Constraint("Equal", 68, 69))
sketch1.addConstraint(Sketcher.Constraint("Equal", 69, 71))
sketch1.addConstraint(Sketcher.Constraint("Equal", 71, 73))
sketch1.addConstraint(Sketcher.Constraint("Symmetric", 1, 3, 39, 3, -1, 1))
sketch1.addConstraint(Sketcher.Constraint("Symmetric", 5, 3, 43, 3, -1, 1))
sketch1.addConstraint(Sketcher.Constraint("Symmetric", 7, 3, 45, 3, -1, 1))
sketch1.addConstraint(Sketcher.Constraint("Symmetric", 11, 3, 49, 3, -1, 1))
sketch1.addConstraint(Sketcher.Constraint("Symmetric", 16, 3, 54, 3, -1, 1))
sketch1.addConstraint(Sketcher.Constraint("Symmetric", 20, 3, 58, 3, -1, 1))
sketch1.addConstraint(Sketcher.Constraint("Symmetric", 24, 3, 62, 3, -1, 1))
sketch1.addConstraint(Sketcher.Constraint("Symmetric", 26, 3, 64, 3, -1, 1))
sketch1.addConstraint(Sketcher.Constraint("Symmetric", 30, 3, 68, 3, -1, 1))
sketch1.addConstraint(Sketcher.Constraint("Symmetric", 35, 3, 73, 3, -1, 1))
sketch1.addConstraint(Sketcher.Constraint("Symmetric", 5, 3, 11, 3, -2))
sketch1.addConstraint(Sketcher.Constraint("Symmetric", 1, 3, 16, 3, -2))
sketch1.addConstraint(Sketcher.Constraint("Symmetric", 35, 3, 58, 3, -2))
sketch1.addConstraint(Sketcher.Constraint("Symmetric", 30, 3, 62, 3, -2))
sketch1.addConstraint(Sketcher.Constraint("Perpendicular", 6, 10))
sketch1.addConstraint(Sketcher.Constraint("Perpendicular", 10, 18))
sketch1.addConstraint(Sketcher.Constraint("Perpendicular", 18, 25))
sketch1.addConstraint(Sketcher.Constraint("Perpendicular", 25, 29))
sketch1.addConstraint(Sketcher.Constraint("Perpendicular", 29, 37))
sketch1.addConstraint(Sketcher.Constraint("Perpendicular", 44, 48))
sketch1.addConstraint(Sketcher.Constraint("Perpendicular", 48, 56))
sketch1.addConstraint(Sketcher.Constraint("Perpendicular", 63, 67))
sketch1.addConstraint(Sketcher.Constraint("Perpendicular", 67, 75))
sketch1.addConstraint(Sketcher.Constraint("Horizontal", 6, 2, 9, 1))
sketch1.addConstraint(Sketcher.Constraint("Horizontal", 12, 3, 11, 1))
sketch1.addConstraint(Sketcher.Constraint("Horizontal", 50, 3, 49, 1))
sketch1.addConstraint(Sketcher.Constraint("Horizontal", 18, 2, 74, 2))
sketch1.addConstraint(Sketcher.Constraint("Vertical", 31, 3, 30, 1))
sketch1.addConstraint(Sketcher.Constraint("Vertical", 69, 3, 68, 1))
sketch1.addConstraint(Sketcher.Constraint("Vertical", 55, 2, 75, 2))
sketch1.addConstraint(Sketcher.Constraint("Equal", 72, 2))
sketch1.addConstraint(Sketcher.Constraint("Equal", 0, 19))
sketch1.addConstraint(Sketcher.Constraint("Equal", 51, 23))
sketch1.addConstraint(Sketcher.Constraint("Equal", 46, 27))
sketch1.addConstraint(Sketcher.Constraint("Equal", 10, 25))
sketch1.addConstraint(Sketcher.Constraint("Radius", 1, Q("1.016 mm")))
sketch1.addConstraint(Sketcher.Constraint("DistanceY", 0, 2, -1, 1, Q("12.7 mm")))
sketch1.addConstraint(Sketcher.Constraint("Diameter", 76, Q("5.10999 mm")))
sketch1.addConstraint(Sketcher.Constraint("DistanceX", 17, 1, 17, 2, Q("6.977702 mm")))
sketch1.addConstraint(Sketcher.Constraint("Radius", 7, Q("2.209796 mm")))
sketch1.addConstraint(Sketcher.Constraint("DistanceX", 4, 2, 4, 1, Q("2.18701 mm")))
sketch1.addConstraint(Sketcher.Constraint("DistanceX", -1, 1, 9, 3, Q("2.030599 mm")))
sketch1.addConstraint(Sketcher.Constraint("Distance", 18, Q("2.121388 mm")))
sketch1.addConstraint(Sketcher.Constraint("DistanceX", 21, 2, 21, 1, Q("0.243335 mm")))
sketch1.addConstraint(Sketcher.Constraint("DistanceX", 38, 2, 38, 1, Q("6.977698 mm")))
pad1 = body.newObject("PartDesign::Pad", "Pad")
pad1.Profile = sketch1
pad1.Length = 550

doc.recompute()
